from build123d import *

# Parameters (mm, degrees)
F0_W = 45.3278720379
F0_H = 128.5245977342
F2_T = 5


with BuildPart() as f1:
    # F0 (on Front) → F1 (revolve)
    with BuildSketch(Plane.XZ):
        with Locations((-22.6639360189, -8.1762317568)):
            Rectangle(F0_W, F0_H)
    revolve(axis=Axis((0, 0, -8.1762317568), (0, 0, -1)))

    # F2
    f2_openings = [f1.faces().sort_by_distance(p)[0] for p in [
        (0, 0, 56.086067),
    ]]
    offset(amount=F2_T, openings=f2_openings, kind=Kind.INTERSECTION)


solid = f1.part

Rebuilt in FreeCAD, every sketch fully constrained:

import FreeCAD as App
import Part
import Sketcher

V = App.Vector


def faces_at(feature, points):
    """Names of the faces that lie closest to the given points."""
    faces = feature.Shape.Faces
    near = lambda p: min(range(len(faces)), key=lambda i: faces[i].distToShape(Part.Vertex(*p))[0])
    return sorted({f"Face{near(p) + 1}" for p in points})

doc = App.newDocument("Part")
body = doc.addObject("PartDesign::Body", "Body")

sketch1 = body.newObject("Sketcher::SketchObject", "Sketch")
sketch1.AttachmentSupport = (doc.getObject("XZ_Plane"), [""])
sketch1.MapMode = "FlatFace"
sketch1.addGeometry(Part.LineSegment(V(-45.327872, 56.086067, 0), V(-45.327872, -72.438531, 0)), False)
sketch1.addGeometry(Part.LineSegment(V(-45.327872, -72.438531, 0), V(0, -72.438531, 0)), False)
sketch1.addGeometry(Part.LineSegment(V(0, -72.438531, 0), V(0, 56.086067, 0)), False)
sketch1.addGeometry(Part.LineSegment(V(0, 56.086067, 0), V(-45.327872, 56.086067, 0)), False)
sketch1.addConstraint(Sketcher.Constraint("Coincident", 0, 2, 1, 1))
sketch1.addConstraint(Sketcher.Constraint("Coincident", 1, 2, 2, 1))
sketch1.addConstraint(Sketcher.Constraint("Coincident", 2, 2, 3, 1))
sketch1.addConstraint(Sketcher.Constraint("Coincident", 3, 2, 0, 1))
sketch1.addConstraint(Sketcher.Constraint("Vertical", 0))
sketch1.addConstraint(Sketcher.Constraint("Horizontal", 1))
sketch1.addConstraint(Sketcher.Constraint("Vertical", 2))
sketch1.addConstraint(Sketcher.Constraint("Horizontal", 3))
sketch1.addConstraint(Sketcher.Constraint("PointOnObject", 1, 2, -2))
sketch1.addConstraint(Sketcher.Constraint("DistanceX", 1, 1, 1, 2, 45.327872))
sketch1.addConstraint(Sketcher.Constraint("DistanceY", 0, 2, 0, 1, 128.524598))
sketch1.addConstraint(Sketcher.Constraint("DistanceY", 0, 2, -1, 1, 72.438531))
revolution = body.newObject("PartDesign::Revolution", "Revolution")
revolution.Profile = sketch1
revolution.ReferenceAxis = (sketch1, ["V_Axis"])
revolution.Angle = 360
doc.recompute()

thickness = body.newObject("PartDesign::Thickness", "Thickness")
thickness.Base = (revolution, faces_at(revolution, [(0, 0, 56.086)]))
thickness.Value = 5
thickness.Reversed = False
thickness.Join = "Intersection"

doc.recompute()
